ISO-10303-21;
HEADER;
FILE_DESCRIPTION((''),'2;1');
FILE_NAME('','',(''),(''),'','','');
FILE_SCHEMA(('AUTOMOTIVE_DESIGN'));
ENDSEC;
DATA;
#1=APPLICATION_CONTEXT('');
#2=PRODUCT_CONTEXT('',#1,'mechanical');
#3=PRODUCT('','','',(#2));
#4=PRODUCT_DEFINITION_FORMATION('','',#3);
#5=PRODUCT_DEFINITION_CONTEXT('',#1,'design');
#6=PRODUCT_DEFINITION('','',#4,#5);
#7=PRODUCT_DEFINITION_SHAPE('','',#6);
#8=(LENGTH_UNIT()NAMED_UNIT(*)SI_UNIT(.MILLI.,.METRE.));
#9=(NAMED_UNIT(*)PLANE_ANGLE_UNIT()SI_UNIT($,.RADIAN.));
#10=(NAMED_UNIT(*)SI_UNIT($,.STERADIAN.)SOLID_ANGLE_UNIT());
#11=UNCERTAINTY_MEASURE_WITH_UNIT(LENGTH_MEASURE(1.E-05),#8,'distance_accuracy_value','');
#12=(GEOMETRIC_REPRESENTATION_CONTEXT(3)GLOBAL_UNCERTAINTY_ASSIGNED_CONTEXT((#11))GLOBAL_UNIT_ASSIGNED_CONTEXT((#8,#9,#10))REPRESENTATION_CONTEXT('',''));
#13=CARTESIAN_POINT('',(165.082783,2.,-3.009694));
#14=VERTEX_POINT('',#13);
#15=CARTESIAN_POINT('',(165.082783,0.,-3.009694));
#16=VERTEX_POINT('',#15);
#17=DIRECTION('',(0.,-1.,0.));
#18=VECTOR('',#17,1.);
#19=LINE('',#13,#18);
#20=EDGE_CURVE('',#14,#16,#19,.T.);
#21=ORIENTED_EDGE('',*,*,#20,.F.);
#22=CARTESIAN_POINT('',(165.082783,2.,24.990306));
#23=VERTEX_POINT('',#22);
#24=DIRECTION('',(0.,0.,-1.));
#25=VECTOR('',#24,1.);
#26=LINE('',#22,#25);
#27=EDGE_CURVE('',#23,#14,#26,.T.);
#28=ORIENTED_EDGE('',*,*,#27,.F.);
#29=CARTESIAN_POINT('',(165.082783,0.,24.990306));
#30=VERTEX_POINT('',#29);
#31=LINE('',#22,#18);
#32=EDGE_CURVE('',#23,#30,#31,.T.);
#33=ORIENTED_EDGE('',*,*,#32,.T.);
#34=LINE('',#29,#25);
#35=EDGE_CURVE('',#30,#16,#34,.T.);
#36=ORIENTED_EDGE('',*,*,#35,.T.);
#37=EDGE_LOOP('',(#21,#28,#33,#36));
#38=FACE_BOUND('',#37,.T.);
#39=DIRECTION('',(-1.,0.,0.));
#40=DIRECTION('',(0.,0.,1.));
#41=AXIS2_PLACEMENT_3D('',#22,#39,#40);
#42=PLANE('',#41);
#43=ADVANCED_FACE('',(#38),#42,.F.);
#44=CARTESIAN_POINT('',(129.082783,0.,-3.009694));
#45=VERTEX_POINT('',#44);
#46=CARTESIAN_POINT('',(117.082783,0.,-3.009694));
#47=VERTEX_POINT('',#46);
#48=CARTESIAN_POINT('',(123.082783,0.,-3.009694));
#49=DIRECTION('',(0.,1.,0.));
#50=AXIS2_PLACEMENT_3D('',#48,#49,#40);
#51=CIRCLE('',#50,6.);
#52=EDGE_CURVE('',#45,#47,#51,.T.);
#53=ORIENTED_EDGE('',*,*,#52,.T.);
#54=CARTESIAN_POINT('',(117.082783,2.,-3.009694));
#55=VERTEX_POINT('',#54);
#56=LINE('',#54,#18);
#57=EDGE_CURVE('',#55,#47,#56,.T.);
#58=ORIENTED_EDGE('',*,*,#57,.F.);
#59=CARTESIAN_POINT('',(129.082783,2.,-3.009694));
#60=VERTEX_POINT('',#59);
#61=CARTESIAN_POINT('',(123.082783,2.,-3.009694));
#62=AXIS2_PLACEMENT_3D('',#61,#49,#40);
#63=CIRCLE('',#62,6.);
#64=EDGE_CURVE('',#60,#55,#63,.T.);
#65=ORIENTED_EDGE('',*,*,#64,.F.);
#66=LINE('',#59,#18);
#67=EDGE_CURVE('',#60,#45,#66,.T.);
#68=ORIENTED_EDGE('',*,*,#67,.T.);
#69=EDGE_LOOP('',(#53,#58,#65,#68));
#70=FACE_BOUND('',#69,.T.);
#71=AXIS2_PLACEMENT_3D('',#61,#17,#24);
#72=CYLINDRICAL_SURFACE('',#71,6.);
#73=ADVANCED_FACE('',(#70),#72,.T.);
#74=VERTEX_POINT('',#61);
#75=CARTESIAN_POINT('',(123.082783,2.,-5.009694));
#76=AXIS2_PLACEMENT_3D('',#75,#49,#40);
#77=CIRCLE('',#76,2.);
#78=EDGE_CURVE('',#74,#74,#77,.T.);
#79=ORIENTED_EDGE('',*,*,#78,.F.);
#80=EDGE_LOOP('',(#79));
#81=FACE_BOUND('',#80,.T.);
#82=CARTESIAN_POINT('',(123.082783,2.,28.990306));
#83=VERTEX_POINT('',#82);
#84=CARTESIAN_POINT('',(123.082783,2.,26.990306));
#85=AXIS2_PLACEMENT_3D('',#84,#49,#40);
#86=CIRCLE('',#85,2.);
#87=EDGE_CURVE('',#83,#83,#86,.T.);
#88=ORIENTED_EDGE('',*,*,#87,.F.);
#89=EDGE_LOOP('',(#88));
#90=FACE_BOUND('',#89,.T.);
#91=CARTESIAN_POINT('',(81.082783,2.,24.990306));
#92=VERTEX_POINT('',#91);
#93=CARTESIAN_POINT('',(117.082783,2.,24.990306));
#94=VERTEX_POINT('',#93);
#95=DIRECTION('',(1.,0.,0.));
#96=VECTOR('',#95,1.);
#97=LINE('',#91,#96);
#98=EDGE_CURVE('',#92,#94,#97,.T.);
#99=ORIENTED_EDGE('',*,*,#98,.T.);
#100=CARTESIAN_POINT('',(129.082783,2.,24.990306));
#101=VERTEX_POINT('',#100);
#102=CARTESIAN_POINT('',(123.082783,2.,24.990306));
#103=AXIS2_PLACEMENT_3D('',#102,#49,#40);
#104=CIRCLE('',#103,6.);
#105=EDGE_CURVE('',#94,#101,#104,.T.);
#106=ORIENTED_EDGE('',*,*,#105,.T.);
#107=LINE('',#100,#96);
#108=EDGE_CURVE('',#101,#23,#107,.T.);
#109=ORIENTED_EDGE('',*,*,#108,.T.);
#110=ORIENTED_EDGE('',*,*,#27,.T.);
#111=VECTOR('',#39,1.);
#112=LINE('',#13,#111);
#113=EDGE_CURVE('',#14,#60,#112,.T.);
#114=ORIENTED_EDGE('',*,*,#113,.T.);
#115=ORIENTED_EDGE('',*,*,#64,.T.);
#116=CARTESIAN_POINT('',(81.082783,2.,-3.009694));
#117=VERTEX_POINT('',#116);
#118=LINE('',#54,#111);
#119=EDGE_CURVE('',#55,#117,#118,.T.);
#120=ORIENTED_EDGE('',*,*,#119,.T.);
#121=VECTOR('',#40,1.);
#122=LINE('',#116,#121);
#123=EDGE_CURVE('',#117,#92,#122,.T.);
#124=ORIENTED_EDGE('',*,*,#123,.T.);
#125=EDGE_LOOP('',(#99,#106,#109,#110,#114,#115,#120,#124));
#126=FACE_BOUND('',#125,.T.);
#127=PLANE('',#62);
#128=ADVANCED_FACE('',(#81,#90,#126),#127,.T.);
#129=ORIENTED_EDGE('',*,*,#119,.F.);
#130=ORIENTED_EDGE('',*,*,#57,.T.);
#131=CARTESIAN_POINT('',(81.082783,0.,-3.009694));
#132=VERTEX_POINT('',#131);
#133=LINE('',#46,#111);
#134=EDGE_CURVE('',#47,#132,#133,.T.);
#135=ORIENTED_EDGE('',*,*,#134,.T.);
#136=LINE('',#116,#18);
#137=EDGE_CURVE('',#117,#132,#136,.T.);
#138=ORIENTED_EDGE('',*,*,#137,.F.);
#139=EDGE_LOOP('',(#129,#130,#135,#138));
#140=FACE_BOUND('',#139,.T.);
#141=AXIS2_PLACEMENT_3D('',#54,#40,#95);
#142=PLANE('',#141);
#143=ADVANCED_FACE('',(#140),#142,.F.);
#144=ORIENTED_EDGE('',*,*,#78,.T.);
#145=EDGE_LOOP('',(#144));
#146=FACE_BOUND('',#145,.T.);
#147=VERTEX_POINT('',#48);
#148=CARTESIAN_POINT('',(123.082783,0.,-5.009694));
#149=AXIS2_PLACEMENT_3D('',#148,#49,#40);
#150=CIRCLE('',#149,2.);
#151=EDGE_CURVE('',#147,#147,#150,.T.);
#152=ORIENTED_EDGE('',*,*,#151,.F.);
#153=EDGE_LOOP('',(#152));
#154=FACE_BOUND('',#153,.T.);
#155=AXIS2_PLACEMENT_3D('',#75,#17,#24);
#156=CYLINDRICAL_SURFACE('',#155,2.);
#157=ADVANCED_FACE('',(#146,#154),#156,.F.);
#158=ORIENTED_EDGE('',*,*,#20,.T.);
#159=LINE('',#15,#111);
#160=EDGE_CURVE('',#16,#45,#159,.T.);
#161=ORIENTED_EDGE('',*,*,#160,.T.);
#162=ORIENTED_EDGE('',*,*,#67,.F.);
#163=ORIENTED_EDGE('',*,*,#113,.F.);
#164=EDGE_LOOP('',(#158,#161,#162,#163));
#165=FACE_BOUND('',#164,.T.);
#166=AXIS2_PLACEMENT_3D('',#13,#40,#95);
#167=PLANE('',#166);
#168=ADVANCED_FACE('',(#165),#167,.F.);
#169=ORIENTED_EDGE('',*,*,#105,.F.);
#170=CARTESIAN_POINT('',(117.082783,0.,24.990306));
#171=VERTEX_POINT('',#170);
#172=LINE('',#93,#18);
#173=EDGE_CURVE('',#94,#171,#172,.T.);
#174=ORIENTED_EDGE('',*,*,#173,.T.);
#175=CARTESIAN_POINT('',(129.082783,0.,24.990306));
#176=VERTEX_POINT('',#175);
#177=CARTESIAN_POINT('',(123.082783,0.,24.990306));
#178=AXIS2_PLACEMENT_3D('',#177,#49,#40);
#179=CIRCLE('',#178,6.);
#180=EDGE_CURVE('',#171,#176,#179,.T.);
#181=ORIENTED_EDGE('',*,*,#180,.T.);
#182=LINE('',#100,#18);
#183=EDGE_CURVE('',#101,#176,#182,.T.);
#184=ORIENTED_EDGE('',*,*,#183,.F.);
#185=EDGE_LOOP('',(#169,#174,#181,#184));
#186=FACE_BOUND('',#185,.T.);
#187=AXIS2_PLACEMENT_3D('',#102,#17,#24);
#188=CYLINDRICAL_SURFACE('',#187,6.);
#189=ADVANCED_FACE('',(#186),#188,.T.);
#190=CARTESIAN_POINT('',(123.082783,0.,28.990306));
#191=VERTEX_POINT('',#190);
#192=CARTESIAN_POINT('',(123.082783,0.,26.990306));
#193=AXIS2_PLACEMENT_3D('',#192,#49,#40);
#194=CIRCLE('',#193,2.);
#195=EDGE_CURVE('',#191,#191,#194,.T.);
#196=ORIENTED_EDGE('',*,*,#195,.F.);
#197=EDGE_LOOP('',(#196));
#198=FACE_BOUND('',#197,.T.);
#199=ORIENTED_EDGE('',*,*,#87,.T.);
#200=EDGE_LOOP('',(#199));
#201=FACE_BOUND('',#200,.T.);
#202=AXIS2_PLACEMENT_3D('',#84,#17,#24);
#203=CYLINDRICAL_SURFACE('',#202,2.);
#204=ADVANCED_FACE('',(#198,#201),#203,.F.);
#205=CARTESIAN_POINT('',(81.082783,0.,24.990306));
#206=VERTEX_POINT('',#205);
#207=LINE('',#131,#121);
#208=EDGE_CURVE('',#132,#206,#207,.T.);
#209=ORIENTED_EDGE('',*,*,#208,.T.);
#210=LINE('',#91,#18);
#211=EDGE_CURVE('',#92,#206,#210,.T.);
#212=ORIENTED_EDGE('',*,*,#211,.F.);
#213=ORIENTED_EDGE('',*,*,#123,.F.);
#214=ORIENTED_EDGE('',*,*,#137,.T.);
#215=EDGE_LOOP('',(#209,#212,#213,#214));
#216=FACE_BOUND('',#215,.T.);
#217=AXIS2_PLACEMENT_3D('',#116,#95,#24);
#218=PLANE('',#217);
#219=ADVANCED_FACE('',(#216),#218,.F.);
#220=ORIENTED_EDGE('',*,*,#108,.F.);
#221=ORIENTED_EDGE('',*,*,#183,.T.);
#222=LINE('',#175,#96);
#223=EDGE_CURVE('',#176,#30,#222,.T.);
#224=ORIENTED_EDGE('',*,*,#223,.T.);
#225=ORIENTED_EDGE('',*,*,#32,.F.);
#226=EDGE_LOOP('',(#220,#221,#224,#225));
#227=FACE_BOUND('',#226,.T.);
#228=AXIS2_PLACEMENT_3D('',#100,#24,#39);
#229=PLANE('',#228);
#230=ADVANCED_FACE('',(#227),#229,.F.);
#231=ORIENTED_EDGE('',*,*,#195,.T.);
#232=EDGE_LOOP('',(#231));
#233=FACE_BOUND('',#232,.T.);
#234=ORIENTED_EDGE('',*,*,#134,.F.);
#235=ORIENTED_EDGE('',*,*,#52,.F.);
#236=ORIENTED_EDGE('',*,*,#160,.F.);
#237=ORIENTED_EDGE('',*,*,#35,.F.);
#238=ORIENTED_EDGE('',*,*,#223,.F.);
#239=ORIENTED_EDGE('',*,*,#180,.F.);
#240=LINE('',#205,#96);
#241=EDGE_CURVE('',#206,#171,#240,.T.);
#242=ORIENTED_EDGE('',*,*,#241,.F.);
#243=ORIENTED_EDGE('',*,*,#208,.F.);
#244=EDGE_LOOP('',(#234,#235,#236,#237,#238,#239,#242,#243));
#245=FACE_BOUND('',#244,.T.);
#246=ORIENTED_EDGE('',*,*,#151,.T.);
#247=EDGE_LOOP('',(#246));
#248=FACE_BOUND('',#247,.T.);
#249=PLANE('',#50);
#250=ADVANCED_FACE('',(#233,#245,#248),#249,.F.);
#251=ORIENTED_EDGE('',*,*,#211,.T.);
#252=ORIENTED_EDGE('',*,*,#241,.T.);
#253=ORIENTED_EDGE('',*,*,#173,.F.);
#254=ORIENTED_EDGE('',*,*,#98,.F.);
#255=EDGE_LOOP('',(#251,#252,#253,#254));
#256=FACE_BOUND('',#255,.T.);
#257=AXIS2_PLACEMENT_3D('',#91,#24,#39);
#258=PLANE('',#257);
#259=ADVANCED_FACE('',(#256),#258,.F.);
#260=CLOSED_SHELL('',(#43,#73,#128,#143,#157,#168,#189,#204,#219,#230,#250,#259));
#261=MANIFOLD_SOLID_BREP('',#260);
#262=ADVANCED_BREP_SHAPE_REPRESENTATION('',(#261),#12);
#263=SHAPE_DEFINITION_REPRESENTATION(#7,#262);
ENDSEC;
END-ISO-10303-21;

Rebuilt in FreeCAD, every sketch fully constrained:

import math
import FreeCAD as App
import Part
import Sketcher

V = App.Vector
Q = App.Units.Quantity

doc = App.newDocument("Part")
params = doc.addObject("Spreadsheet::Sheet", "Params")
for row, (alias, value) in enumerate([
    ("sketch1_diameter", "4 mm"),
    ("sketch1_radius", "6 mm"),
    ("sketch1_width", "36 mm"),
    ("sketch1_height", "28 mm"),
    ("pad1_length", "2 mm"),
], start=1):
    params.set(f"A{row}", alias)
    params.set(f"B{row}", "=" + value)
    params.setAlias(f"B{row}", alias)

body = doc.addObject("PartDesign::Body", "Body")

# Sketch on XZ plane
sketch1 = body.newObject("Sketcher::SketchObject", "Sketch")
sketch1.AttachmentSupport = (doc.getObject("XZ_Plane"), [""])
sketch1.MapMode = "FlatFace"
sketch1.addGeometry(Part.LineSegment(V(165.1, 25, 0), V(165.1, -3, 0)), False)
sketch1.addGeometry(Part.LineSegment(V(165.1, -3, 0), V(129.1, -3, 0)), False)
sketch1.addGeometry(Part.ArcOfCircle(Part.Circle(V(123.1, -3, 0), V(0, 0, 1), 6), math.radians(180), math.radians(360)), False)
sketch1.addGeometry(Part.LineSegment(V(117.1, -3, 0), V(81.1, -3, 0)), False)
sketch1.addGeometry(Part.LineSegment(V(81.1, -3, 0), V(81.1, 25, 0)), False)
sketch1.addGeometry(Part.LineSegment(V(81.1, 25, 0), V(117.1, 25, 0)), False)
sketch1.addGeometry(Part.ArcOfCircle(Part.Circle(V(123.1, 25, 0), V(0, 0, 1), 6), math.radians(0), math.radians(180)), False)
sketch1.addGeometry(Part.LineSegment(V(129.1, 25, 0), V(165.1, 25, 0)), False)
sketch1.addGeometry(Part.Circle(V(123.1, 27, 0), V(0, 0, 1), 2), False)
sketch1.addGeometry(Part.Circle(V(123.1, -5, 0), V(0, 0, 1), 2), False)
sketch1.addConstraint(Sketcher.Constraint("Coincident", 0, 2, 1, 1))
sketch1.addConstraint(Sketcher.Constraint("Coincident", 1, 2, 2, 2))
sketch1.addConstraint(Sketcher.Constraint("Coincident", 2, 1, 3, 1))
sketch1.addConstraint(Sketcher.Constraint("Coincident", 3, 2, 4, 1))
sketch1.addConstraint(Sketcher.Constraint("Coincident", 4, 2, 5, 1))
sketch1.addConstraint(Sketcher.Constraint("Coincident", 5, 2, 6, 2))
sketch1.addConstraint(Sketcher.Constraint("Coincident", 6, 1, 7, 1))
sketch1.addConstraint(Sketcher.Constraint("Coincident", 7, 2, 0, 1))
sketch1.addConstraint(Sketcher.Constraint("Vertical", 0))
sketch1.addConstraint(Sketcher.Constraint("Horizontal", 1))
sketch1.addConstraint(Sketcher.Constraint("Horizontal", 3))
sketch1.addConstraint(Sketcher.Constraint("Vertical", 4))
sketch1.addConstraint(Sketcher.Constraint("Horizontal", 5))
sketch1.addConstraint(Sketcher.Constraint("Horizontal", 7))
sketch1.addConstraint(Sketcher.Constraint("Equal", 2, 6))
sketch1.addConstraint(Sketcher.Constraint("Equal", 8, 9))
sketch1.addConstraint(Sketcher.Constraint("Horizontal", 2, 3, 0, 2))
sketch1.addConstraint(Sketcher.Constraint("Horizontal", 1, 2, 2, 1))
sketch1.addConstraint(Sketcher.Constraint("Horizontal", 6, 3, 4, 2))
sketch1.addConstraint(Sketcher.Constraint("Horizontal", 5, 2, 6, 1))
sketch1.addConstraint(Sketcher.Constraint("Vertical", 2, 3, 6, 3))
sketch1.addConstraint(Sketcher.Constraint("Vertical", 6, 3, 8, 3))
sketch1.addConstraint(Sketcher.Constraint("Vertical", 8, 3, 9, 3))
sketch1.addConstraint(Sketcher.Constraint("Equal", 1, 3))
sketch1.addConstraint(Sketcher.Constraint("Diameter", 8, Q("4 mm")))
sketch1.addConstraint(Sketcher.Constraint("Radius", 2, Q("6 mm")))
sketch1.addConstraint(Sketcher.Constraint("DistanceX", 1, 2, 1, 1, Q("36 mm")))
sketch1.addConstraint(Sketcher.Constraint("DistanceY", 0, 2, 0, 1, Q("28 mm")))
sketch1.addConstraint(Sketcher.Constraint("DistanceY", 6, 3, 8, 3, Q("2 mm")))
sketch1.addConstraint(Sketcher.Constraint("DistanceY", 9, 3, 2, 3, Q("2 mm")))
sketch1.addConstraint(Sketcher.Constraint("DistanceX", -1, 1, 2, 3, Q("123.082783 mm")))
sketch1.addConstraint(Sketcher.Constraint("DistanceY", 2, 3, -1, 1, Q("3.009694 mm")))
sketch1.setExpression("Constraints[24]", "Params.sketch1_diameter")
sketch1.setExpression("Constraints[25]", "Params.sketch1_radius")
sketch1.setExpression("Constraints[26]", "Params.sketch1_width")
sketch1.setExpression("Constraints[27]", "Params.sketch1_height")
pad1 = body.newObject("PartDesign::Pad", "Pad")
pad1.Profile = sketch1
pad1.setExpression("Length", "Params.pad1_length")
pad1.Reversed = True

doc.recompute()
